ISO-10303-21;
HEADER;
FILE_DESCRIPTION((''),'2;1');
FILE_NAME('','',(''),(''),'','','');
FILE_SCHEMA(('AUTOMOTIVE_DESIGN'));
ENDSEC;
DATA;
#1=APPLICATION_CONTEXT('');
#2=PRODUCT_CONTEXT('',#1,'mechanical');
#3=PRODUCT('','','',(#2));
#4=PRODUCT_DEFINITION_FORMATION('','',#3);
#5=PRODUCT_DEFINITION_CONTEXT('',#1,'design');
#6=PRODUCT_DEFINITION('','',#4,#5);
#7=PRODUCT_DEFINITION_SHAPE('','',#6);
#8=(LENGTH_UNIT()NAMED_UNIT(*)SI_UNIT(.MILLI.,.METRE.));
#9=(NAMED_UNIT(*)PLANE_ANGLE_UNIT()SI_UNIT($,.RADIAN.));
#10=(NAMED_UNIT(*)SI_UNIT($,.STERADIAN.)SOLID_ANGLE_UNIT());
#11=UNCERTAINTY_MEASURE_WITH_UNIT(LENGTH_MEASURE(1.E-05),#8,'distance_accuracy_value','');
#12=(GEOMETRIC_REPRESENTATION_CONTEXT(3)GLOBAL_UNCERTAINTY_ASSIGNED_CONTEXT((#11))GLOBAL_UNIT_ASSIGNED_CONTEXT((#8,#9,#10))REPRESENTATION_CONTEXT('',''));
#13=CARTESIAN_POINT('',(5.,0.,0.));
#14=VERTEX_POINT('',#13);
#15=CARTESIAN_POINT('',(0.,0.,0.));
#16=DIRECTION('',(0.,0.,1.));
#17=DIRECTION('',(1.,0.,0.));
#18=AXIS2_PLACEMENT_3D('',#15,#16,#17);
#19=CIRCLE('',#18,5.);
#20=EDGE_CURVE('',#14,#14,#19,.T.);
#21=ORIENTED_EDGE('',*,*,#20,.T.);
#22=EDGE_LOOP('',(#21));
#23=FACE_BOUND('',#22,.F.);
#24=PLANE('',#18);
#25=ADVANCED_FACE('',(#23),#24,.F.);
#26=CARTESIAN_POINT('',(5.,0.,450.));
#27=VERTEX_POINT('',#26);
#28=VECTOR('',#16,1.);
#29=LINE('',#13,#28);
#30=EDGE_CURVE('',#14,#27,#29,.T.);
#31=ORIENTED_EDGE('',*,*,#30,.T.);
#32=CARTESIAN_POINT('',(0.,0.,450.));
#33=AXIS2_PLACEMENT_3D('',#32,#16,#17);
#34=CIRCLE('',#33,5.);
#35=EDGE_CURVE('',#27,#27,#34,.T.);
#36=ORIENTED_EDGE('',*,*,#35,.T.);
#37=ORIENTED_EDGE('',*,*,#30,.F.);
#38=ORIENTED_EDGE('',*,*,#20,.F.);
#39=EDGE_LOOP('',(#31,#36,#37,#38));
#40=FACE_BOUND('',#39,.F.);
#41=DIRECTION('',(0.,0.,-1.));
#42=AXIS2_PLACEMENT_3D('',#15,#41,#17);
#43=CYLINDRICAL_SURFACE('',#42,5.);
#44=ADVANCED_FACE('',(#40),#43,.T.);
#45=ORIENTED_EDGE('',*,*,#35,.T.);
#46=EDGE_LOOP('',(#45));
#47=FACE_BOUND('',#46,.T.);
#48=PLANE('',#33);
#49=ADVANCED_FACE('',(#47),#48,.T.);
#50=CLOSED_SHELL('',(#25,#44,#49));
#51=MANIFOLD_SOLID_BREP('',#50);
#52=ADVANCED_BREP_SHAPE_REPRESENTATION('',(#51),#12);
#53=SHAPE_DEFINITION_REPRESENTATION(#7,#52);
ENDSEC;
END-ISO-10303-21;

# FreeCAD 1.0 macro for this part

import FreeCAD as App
import Part
import Sketcher

V = App.Vector

doc = App.newDocument("Part")
params = doc.addObject("Spreadsheet::Sheet", "Params")
for row, (alias, value) in enumerate([
    ("sketch1_diameter", "10 mm"),
    ("pad1_length", "450 mm"),
], start=1):
    params.set(f"A{row}", alias)
    params.set(f"B{row}", "=" + value)
    params.setAlias(f"B{row}", alias)

body = doc.addObject("PartDesign::Body", "Body")

sketch1 = body.newObject("Sketcher::SketchObject", "Sketch")
sketch1.AttachmentSupport = (doc.getObject("XY_Plane"), [""])
sketch1.MapMode = "FlatFace"
sketch1.addGeometry(Part.Circle(V(0, 0, 0), V(0, 0, 1), 5), False)
sketch1.addConstraint(Sketcher.Constraint("Coincident", 0, 3, -1, 1))
sketch1.addConstraint(Sketcher.Constraint("Diameter", 0, 10.0))
sketch1.setExpression("Constraints[1]", "Params.sketch1_diameter")
pad1 = body.newObject("PartDesign::Pad", "Pad")
pad1.Profile = sketch1
pad1.setExpression("Length", "Params.pad1_length")

doc.recompute()
